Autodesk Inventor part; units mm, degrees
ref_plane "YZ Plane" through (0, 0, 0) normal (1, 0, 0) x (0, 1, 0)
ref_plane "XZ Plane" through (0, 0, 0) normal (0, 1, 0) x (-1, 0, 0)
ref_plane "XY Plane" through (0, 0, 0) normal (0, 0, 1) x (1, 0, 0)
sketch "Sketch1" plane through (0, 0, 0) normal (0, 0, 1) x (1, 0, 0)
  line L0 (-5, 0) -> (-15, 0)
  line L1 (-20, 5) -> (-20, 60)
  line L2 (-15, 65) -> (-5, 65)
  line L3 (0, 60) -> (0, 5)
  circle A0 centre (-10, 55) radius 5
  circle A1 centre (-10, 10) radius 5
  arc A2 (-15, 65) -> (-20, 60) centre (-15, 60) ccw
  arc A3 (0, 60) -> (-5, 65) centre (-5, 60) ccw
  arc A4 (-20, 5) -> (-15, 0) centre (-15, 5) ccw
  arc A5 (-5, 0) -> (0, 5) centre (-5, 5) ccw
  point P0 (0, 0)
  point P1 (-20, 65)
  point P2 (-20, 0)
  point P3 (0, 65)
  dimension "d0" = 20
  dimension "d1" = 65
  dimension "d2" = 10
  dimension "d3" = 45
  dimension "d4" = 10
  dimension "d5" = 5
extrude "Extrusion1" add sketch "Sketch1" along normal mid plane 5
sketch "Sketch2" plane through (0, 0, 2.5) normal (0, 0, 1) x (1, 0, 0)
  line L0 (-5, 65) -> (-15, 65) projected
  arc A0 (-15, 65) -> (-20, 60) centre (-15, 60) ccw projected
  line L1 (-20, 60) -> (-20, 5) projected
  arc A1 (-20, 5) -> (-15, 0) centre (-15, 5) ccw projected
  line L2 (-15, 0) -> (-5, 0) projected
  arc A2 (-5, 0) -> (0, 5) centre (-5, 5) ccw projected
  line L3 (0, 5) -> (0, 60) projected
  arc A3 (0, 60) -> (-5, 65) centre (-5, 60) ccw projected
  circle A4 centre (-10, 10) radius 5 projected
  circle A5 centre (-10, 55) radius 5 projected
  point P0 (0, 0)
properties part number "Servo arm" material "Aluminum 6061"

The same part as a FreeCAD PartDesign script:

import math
import FreeCAD as App
import Part
import Sketcher
from FreeCAD import Vector

doc = App.newDocument("Part")
params = doc.addObject("Spreadsheet::Sheet", "Params")
for row, (alias, value) in enumerate([
    ("sketch1_diameter", "10 mm"),
    ("sketch1_width", "10 mm"),
    ("pad1_length", "5 mm"),
], start=1):
    params.set(f"A{row}", alias)
    params.set(f"B{row}", "=" + value)
    params.setAlias(f"B{row}", alias)

body = doc.addObject("PartDesign::Body", "Body")

# Sketch on XY plane
sketch1 = doc.addObject("Sketcher::SketchObject", "Sketch")
body.addObject(sketch1)
sketch1.AttachmentSupport = (doc.XY_Plane, [""])
sketch1.MapMode = "FlatFace"
sketch1.addGeometry(Part.LineSegment(Vector(-15, 0, 0), Vector(-5, 0, 0)), False)
sketch1.addGeometry(Part.ArcOfCircle(Part.Circle(Vector(-5, 5, 0), Vector(0, 0, 1), 5), math.radians(-90), math.radians(0)), False)
sketch1.addGeometry(Part.LineSegment(Vector(0, 5, 0), Vector(0, 60, 0)), False)
sketch1.addGeometry(Part.ArcOfCircle(Part.Circle(Vector(-5, 60, 0), Vector(0, 0, 1), 5), math.radians(0), math.radians(90)), False)
sketch1.addGeometry(Part.LineSegment(Vector(-5, 65, 0), Vector(-15, 65, 0)), False)
sketch1.addGeometry(Part.ArcOfCircle(Part.Circle(Vector(-15, 60, 0), Vector(0, 0, 1), 5), math.radians(90), math.radians(180)), False)
sketch1.addGeometry(Part.LineSegment(Vector(-20, 60, 0), Vector(-20, 5, 0)), False)
sketch1.addGeometry(Part.ArcOfCircle(Part.Circle(Vector(-15, 5, 0), Vector(0, 0, 1), 5), math.radians(180), math.radians(270)), False)
sketch1.addGeometry(Part.Circle(Vector(-10, 10, 0), Vector(0, 0, 1), 5), False)
sketch1.addGeometry(Part.Circle(Vector(-10, 55, 0), Vector(0, 0, 1), 5), False)
sketch1.addConstraint(Sketcher.Constraint("Tangent", 0, 2, 1, 1))
sketch1.addConstraint(Sketcher.Constraint("Tangent", 1, 2, 2, 1))
sketch1.addConstraint(Sketcher.Constraint("Tangent", 2, 2, 3, 1))
sketch1.addConstraint(Sketcher.Constraint("Tangent", 3, 2, 4, 1))
sketch1.addConstraint(Sketcher.Constraint("Tangent", 4, 2, 5, 1))
sketch1.addConstraint(Sketcher.Constraint("Tangent", 5, 2, 6, 1))
sketch1.addConstraint(Sketcher.Constraint("Tangent", 6, 2, 7, 1))
sketch1.addConstraint(Sketcher.Constraint("Tangent", 7, 2, 0, 1))
sketch1.addConstraint(Sketcher.Constraint("Horizontal", 0))
sketch1.addConstraint(Sketcher.Constraint("Vertical", 2))
sketch1.addConstraint(Sketcher.Constraint("Horizontal", 4))
sketch1.addConstraint(Sketcher.Constraint("Vertical", 6))
sketch1.addConstraint(Sketcher.Constraint("Equal", 1, 3))
sketch1.addConstraint(Sketcher.Constraint("Equal", 3, 5))
sketch1.addConstraint(Sketcher.Constraint("Equal", 5, 7))
sketch1.addConstraint(Sketcher.Constraint("Equal", 7, 8))
sketch1.addConstraint(Sketcher.Constraint("Equal", 8, 9))
sketch1.addConstraint(Sketcher.Constraint("PointOnObject", 0, 2, -1))
sketch1.addConstraint(Sketcher.Constraint("PointOnObject", 1, 2, -2))
sketch1.addConstraint(Sketcher.Constraint("Vertical", 8, 3, 9, 3))
sketch1.addConstraint(Sketcher.Constraint("Diameter", 8, 10.0))
sketch1.addConstraint(Sketcher.Constraint("DistanceX", 0, 1, 0, 2, 10.0))
sketch1.addConstraint(Sketcher.Constraint("DistanceX", 8, 3, -1, 1, 10.0))
sketch1.addConstraint(Sketcher.Constraint("DistanceY", -1, 1, 8, 3, 10.0))
sketch1.addConstraint(Sketcher.Constraint("DistanceY", -1, 1, 3, 2, 65.0))
sketch1.addConstraint(Sketcher.Constraint("DistanceY", 9, 3, 3, 3, 5.0))
sketch1.setExpression("Constraints[20]", "Params.sketch1_diameter")
sketch1.setExpression("Constraints[21]", "Params.sketch1_width")
pad1 = doc.addObject("PartDesign::Pad", "Pad")
body.addObject(pad1)
pad1.Profile = sketch1
pad1.setExpression("Length", "Params.pad1_length")
pad1.Midplane = True

doc.recompute()
